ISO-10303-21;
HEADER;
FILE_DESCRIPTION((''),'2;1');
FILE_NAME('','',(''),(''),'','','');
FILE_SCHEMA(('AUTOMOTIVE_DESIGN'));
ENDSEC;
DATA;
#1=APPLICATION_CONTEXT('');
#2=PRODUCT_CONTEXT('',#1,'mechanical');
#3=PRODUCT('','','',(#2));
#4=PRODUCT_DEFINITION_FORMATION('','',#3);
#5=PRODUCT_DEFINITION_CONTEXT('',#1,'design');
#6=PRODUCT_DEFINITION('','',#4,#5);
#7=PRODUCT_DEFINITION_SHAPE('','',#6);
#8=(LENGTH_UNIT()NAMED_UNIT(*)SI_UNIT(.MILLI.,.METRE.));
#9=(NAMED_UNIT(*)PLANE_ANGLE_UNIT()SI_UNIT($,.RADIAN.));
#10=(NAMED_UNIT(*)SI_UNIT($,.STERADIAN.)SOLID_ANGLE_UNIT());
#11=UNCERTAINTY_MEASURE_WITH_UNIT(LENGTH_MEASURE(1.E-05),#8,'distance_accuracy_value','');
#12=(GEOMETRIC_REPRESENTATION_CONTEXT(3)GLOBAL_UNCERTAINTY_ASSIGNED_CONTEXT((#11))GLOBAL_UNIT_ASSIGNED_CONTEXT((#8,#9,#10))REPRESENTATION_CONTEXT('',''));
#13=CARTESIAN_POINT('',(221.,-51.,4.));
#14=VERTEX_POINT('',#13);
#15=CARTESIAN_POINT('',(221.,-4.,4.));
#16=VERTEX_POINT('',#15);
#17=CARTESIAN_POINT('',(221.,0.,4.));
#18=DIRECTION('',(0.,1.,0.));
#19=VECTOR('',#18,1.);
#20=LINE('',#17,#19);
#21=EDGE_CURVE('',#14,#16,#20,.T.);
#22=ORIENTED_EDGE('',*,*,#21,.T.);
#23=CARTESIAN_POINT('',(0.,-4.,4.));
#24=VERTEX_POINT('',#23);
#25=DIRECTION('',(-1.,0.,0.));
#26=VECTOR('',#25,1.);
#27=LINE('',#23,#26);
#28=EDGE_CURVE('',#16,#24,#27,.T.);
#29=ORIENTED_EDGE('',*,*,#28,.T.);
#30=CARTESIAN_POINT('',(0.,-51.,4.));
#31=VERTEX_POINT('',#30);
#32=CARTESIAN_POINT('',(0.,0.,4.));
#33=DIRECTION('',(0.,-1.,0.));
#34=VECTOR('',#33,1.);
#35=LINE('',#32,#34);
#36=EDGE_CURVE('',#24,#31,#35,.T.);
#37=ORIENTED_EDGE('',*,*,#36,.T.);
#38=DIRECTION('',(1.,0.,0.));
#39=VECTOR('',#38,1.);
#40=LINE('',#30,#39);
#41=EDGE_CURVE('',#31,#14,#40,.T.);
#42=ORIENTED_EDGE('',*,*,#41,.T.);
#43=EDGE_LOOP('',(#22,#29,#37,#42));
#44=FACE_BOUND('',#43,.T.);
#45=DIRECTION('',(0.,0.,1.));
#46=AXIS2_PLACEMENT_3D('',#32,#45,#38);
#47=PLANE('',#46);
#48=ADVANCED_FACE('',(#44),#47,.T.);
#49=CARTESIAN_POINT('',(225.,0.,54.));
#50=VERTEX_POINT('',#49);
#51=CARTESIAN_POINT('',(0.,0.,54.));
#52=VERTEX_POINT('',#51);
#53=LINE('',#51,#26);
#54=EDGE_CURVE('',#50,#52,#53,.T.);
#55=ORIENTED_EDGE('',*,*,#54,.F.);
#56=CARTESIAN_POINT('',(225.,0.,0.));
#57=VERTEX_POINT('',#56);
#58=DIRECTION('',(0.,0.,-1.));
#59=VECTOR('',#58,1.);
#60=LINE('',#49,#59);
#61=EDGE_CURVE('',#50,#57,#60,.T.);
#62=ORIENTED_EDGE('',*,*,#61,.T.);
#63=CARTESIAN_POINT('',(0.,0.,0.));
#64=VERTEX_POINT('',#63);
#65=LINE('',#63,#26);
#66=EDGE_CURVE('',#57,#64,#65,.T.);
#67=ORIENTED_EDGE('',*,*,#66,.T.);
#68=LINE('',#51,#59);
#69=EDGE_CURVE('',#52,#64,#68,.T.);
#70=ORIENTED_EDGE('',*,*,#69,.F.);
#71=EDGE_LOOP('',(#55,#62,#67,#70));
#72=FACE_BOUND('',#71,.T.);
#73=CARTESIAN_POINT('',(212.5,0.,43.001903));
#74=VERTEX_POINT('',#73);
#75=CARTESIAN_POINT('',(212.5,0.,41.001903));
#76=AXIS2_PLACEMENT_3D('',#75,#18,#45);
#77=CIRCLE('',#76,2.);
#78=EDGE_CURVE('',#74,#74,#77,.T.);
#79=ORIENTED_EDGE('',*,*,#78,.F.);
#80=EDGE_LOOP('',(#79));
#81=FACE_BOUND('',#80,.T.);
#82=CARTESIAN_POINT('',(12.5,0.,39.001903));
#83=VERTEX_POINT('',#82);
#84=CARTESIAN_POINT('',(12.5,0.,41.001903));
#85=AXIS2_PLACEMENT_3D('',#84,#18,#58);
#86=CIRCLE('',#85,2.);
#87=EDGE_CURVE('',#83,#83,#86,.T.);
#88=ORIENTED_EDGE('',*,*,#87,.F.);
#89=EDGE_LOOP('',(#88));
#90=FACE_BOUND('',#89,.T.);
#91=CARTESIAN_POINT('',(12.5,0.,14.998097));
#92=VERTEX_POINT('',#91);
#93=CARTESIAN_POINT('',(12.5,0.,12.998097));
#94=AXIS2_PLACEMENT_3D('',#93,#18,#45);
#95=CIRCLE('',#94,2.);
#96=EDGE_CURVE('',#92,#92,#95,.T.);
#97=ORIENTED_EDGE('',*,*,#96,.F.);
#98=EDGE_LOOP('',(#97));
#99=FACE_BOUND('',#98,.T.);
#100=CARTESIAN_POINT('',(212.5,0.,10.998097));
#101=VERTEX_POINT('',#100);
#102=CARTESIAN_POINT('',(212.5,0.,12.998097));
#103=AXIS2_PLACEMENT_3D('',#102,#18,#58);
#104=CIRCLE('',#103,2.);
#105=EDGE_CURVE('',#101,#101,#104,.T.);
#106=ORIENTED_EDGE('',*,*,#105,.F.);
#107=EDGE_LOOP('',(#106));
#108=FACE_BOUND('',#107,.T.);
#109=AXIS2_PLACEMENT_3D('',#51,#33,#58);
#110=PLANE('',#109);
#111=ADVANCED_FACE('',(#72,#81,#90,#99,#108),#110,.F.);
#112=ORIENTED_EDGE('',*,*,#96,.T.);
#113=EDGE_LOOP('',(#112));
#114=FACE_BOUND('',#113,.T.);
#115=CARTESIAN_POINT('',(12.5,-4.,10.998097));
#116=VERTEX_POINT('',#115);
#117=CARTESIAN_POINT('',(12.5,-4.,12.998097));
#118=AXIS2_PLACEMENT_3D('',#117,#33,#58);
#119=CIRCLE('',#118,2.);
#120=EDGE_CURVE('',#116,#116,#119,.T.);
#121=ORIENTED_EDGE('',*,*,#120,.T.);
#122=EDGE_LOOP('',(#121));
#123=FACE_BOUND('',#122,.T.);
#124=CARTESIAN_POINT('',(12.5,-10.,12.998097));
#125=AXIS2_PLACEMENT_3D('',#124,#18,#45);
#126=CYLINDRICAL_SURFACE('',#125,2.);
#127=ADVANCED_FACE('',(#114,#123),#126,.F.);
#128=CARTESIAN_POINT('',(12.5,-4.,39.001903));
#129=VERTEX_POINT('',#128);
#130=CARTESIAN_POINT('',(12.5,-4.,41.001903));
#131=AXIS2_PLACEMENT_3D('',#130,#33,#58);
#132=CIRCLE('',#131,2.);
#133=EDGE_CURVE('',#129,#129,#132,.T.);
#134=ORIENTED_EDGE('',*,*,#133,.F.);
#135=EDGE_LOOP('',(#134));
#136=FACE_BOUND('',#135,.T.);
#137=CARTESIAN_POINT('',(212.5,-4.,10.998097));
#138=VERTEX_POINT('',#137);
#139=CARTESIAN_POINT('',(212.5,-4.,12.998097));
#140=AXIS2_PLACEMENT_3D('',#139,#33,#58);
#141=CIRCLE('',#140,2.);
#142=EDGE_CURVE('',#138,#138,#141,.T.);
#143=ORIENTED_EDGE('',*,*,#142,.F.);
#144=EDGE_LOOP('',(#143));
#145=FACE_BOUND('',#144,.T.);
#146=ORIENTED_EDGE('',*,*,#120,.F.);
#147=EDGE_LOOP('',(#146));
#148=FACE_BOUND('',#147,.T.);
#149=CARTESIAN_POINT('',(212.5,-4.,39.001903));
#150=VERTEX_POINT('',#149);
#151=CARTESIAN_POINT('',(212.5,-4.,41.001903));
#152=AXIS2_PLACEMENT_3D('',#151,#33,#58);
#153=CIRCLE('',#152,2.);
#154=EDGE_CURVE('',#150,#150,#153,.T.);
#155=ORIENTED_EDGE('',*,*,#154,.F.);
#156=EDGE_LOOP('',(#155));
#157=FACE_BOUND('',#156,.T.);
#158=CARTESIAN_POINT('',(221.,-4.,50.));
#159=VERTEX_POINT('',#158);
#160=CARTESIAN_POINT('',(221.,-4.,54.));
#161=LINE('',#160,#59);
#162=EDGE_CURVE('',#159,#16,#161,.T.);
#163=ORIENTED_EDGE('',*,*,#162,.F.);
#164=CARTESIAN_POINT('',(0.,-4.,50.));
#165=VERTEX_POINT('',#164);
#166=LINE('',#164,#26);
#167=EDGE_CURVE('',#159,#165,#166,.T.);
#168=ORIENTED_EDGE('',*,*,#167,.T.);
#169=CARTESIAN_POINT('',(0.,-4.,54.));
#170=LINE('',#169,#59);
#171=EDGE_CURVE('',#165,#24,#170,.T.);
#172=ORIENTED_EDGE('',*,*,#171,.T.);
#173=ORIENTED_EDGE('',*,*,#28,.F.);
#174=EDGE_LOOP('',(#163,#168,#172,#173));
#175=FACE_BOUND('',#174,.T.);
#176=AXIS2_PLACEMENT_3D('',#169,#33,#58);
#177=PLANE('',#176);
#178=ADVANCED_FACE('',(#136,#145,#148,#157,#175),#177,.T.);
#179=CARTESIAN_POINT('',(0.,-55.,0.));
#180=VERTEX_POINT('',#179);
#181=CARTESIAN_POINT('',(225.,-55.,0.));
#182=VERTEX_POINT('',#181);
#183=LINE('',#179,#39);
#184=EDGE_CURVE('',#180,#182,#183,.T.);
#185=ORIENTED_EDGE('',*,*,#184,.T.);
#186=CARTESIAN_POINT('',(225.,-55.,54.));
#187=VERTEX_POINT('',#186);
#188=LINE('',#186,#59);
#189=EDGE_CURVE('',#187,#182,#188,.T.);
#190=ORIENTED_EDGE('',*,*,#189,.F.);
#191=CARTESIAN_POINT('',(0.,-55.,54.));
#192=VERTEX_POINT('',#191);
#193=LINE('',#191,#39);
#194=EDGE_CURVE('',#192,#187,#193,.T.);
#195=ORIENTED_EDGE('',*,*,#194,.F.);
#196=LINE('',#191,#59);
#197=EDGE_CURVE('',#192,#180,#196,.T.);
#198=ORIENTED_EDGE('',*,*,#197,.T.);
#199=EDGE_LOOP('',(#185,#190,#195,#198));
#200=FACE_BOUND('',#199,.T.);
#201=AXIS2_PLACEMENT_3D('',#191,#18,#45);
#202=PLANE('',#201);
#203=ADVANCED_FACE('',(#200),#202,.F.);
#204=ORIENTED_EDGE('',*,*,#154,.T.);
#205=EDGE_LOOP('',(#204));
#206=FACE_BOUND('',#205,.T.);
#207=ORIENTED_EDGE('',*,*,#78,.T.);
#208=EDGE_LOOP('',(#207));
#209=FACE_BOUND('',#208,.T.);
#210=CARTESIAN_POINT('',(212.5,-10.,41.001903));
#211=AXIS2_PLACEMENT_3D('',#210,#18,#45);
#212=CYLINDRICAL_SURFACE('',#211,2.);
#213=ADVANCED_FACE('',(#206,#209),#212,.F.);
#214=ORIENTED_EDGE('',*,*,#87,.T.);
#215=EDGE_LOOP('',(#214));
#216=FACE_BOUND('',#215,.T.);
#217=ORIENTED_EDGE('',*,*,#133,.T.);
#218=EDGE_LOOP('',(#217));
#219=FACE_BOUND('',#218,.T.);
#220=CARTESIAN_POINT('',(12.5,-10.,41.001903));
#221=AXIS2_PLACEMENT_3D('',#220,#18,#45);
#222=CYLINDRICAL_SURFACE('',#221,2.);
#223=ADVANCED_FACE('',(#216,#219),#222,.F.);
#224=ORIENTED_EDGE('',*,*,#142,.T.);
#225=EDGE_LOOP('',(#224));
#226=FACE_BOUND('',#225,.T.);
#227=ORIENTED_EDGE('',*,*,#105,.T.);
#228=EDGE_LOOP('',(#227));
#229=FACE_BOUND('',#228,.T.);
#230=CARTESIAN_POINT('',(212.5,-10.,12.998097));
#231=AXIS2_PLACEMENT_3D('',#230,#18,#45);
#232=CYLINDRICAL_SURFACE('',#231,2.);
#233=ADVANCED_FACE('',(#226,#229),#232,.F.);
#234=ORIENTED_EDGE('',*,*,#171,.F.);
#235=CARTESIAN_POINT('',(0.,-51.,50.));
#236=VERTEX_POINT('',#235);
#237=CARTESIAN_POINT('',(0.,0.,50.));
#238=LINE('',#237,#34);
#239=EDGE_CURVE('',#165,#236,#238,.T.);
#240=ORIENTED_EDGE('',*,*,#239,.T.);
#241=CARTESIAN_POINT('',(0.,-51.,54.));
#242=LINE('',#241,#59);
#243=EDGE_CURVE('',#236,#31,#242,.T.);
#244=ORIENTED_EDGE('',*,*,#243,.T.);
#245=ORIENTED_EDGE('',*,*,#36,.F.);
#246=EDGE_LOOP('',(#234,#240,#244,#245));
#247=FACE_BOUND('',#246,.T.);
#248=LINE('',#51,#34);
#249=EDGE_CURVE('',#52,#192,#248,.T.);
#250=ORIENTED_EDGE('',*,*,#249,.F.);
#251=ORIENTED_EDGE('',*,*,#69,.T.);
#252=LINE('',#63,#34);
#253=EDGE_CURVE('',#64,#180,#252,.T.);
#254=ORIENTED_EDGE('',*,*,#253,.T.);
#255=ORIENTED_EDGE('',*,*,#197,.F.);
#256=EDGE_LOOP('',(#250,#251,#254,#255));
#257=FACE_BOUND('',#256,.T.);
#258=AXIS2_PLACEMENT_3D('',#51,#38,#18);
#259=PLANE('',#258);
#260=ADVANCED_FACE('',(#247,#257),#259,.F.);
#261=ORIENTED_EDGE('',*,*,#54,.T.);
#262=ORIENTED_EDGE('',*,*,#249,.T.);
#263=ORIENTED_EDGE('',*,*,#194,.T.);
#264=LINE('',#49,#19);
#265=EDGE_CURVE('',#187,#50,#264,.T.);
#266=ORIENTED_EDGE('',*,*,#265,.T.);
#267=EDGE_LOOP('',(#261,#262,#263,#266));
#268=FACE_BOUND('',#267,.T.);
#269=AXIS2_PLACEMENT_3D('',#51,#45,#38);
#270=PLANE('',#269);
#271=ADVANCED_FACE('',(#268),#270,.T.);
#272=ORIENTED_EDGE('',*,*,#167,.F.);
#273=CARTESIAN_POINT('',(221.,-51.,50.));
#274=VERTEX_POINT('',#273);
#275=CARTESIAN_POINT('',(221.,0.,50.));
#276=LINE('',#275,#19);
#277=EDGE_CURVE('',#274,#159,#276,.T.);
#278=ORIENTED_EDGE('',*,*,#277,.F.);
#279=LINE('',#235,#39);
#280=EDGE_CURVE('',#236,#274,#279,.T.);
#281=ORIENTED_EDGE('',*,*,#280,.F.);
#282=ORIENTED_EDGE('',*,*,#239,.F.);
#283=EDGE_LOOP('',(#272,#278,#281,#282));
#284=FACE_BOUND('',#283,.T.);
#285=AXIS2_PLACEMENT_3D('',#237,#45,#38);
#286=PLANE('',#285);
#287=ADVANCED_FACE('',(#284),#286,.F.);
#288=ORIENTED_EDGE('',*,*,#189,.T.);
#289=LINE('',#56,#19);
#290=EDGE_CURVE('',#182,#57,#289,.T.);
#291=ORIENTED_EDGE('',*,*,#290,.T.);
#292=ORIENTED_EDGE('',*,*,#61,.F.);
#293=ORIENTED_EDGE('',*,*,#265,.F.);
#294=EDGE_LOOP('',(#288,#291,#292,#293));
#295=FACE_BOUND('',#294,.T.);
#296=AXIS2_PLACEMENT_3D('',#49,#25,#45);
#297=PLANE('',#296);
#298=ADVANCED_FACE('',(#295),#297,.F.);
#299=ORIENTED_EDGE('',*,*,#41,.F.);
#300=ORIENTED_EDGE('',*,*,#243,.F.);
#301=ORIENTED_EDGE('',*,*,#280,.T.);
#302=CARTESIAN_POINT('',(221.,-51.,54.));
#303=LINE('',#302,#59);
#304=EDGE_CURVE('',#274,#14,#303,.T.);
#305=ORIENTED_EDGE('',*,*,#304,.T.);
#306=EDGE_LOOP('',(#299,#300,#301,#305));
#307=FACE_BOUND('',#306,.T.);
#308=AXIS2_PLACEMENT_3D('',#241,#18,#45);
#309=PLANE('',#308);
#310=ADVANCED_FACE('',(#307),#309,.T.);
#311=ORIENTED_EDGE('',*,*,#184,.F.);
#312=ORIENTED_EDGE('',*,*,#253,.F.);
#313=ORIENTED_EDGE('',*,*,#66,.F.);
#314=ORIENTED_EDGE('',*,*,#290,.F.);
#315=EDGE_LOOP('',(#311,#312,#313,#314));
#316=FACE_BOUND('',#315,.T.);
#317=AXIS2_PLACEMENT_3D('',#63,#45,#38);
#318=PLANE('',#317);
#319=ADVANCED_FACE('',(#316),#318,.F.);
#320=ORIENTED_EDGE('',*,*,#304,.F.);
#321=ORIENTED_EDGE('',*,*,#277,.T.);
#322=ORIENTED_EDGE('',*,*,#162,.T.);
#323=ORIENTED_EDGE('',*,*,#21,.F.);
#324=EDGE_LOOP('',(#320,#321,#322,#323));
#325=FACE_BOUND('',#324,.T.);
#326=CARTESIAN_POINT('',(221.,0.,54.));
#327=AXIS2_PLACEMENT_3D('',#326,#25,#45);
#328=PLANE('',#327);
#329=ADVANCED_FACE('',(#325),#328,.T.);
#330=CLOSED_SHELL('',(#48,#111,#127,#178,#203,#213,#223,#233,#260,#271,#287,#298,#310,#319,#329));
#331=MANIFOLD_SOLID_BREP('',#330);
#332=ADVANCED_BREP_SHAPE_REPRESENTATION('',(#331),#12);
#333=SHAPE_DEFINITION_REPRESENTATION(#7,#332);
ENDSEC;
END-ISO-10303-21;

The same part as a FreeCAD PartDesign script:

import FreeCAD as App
import Part
import Sketcher

V = App.Vector
Q = App.Units.Quantity


def faces_at(feature, points):
    """Names of the faces that lie closest to the given points."""
    faces = feature.Shape.Faces
    near = lambda p: min(range(len(faces)), key=lambda i: faces[i].distToShape(Part.Vertex(*p))[0])
    return sorted({f"Face{near(p) + 1}" for p in points})


def add_polygon(sketch, points):
    """Adds a closed chain of lines whose ends are joined by coincident constraints."""
    first, n = sketch.GeometryCount, len(points)
    for a, b in zip(points, points[1:] + points[:1]):
        sketch.addGeometry(Part.LineSegment(App.Vector(*a, 0), App.Vector(*b, 0)), False)
    for i in range(n):
        sketch.addConstraint(Sketcher.Constraint("Coincident", first + i, 2, first + (i + 1) % n, 1))

doc = App.newDocument("Part")
params = doc.addObject("Spreadsheet::Sheet", "Params")
for row, (alias, value) in enumerate([
    ("sketch1_width", "225 mm"),
    ("sketch1_height", "55 mm"),
    ("pad1_length", "54 mm"),
    ("thickness_wall", "4 mm"),
    ("sketch2_diameter", "4 mm"),
    ("pocket1_length", "10 mm"),
], start=1):
    params.set(f"A{row}", alias)
    params.set(f"B{row}", "=" + value)
    params.setAlias(f"B{row}", alias)

body = doc.addObject("PartDesign::Body", "Body")

# Sketch on XY plane
sketch1 = doc.addObject("Sketcher::SketchObject", "Sketch")
body.addObject(sketch1)
sketch1.AttachmentSupport = (doc.XY_Plane, [""])
sketch1.MapMode = "FlatFace"
add_polygon(sketch1, [(0, 0), (0, -55), (225, -55), (225, 0)])  # lines 0-3
sketch1.addConstraint([
    Sketcher.Constraint("Vertical", 0),
    Sketcher.Constraint("Horizontal", 1),
    Sketcher.Constraint("Vertical", 2),
    Sketcher.Constraint("Horizontal", 3),
    Sketcher.Constraint("Coincident", 3, 2, -1, 1),
    Sketcher.Constraint("DistanceX", 1, 1, 1, 2, Q("225 mm")),
    Sketcher.Constraint("DistanceY", 0, 2, 0, 1, Q("55 mm")),
])
sketch1.setExpression("Constraints[9]", "Params.sketch1_width")
sketch1.setExpression("Constraints[10]", "Params.sketch1_height")
pad1 = doc.addObject("PartDesign::Pad", "Pad")
body.addObject(pad1)
pad1.Profile = sketch1
pad1.setExpression("Length", "Params.pad1_length")
doc.recompute()

thickness = doc.addObject("PartDesign::Thickness", "Thickness")
body.addObject(thickness)
thickness.Base = (pad1, faces_at(pad1, [(0, -27.5, 27)]))
thickness.setExpression("Value", "Params.thickness_wall")
thickness.Reversed = True
thickness.Join = "Intersection"

# Sketch on XZ plane
sketch2 = doc.addObject("Sketcher::SketchObject", "Sketch001")
body.addObject(sketch2)
sketch2.AttachmentSupport = (doc.XZ_Plane, [""])
sketch2.MapMode = "FlatFace"
sketch2.addGeometry([
    Part.Circle(V(12.5, 13, 0), V(0, 0, 1), 2),
    Part.Circle(V(212.5, 13, 0), V(0, 0, 1), 2),
    Part.Circle(V(212.5, 41, 0), V(0, 0, 1), 2),
    Part.Circle(V(12.5, 41, 0), V(0, 0, 1), 2),
], False)
sketch2.addConstraint([
    Sketcher.Constraint("Equal", 0, 1),
    Sketcher.Constraint("Equal", 1, 2),
    Sketcher.Constraint("Equal", 2, 3),
    Sketcher.Constraint("Horizontal", 0, 3, 1, 3),
    Sketcher.Constraint("Horizontal", 2, 3, 3, 3),
    Sketcher.Constraint("Vertical", 1, 3, 2, 3),
    Sketcher.Constraint("Vertical", 0, 3, 3, 3),
    Sketcher.Constraint("Diameter", 0, Q("4 mm")),
    Sketcher.Constraint("DistanceX", 0, 3, 1, 3, Q("200 mm")),
    Sketcher.Constraint("DistanceX", -1, 1, 0, 3, Q("12.5 mm")),
    Sketcher.Constraint("DistanceY", -1, 1, 0, 3, Q("12.998097 mm")),
    Sketcher.Constraint("DistanceY", -1, 1, 2, 3, Q("41.001903 mm")),
])
sketch2.setExpression("Constraints[7]", "Params.sketch2_diameter")
pocket1 = doc.addObject("PartDesign::Pocket", "Pocket")
body.addObject(pocket1)
pocket1.Profile = sketch2
pocket1.setExpression("Length", "Params.pocket1_length")
pocket1.Reversed = True

doc.recompute()
